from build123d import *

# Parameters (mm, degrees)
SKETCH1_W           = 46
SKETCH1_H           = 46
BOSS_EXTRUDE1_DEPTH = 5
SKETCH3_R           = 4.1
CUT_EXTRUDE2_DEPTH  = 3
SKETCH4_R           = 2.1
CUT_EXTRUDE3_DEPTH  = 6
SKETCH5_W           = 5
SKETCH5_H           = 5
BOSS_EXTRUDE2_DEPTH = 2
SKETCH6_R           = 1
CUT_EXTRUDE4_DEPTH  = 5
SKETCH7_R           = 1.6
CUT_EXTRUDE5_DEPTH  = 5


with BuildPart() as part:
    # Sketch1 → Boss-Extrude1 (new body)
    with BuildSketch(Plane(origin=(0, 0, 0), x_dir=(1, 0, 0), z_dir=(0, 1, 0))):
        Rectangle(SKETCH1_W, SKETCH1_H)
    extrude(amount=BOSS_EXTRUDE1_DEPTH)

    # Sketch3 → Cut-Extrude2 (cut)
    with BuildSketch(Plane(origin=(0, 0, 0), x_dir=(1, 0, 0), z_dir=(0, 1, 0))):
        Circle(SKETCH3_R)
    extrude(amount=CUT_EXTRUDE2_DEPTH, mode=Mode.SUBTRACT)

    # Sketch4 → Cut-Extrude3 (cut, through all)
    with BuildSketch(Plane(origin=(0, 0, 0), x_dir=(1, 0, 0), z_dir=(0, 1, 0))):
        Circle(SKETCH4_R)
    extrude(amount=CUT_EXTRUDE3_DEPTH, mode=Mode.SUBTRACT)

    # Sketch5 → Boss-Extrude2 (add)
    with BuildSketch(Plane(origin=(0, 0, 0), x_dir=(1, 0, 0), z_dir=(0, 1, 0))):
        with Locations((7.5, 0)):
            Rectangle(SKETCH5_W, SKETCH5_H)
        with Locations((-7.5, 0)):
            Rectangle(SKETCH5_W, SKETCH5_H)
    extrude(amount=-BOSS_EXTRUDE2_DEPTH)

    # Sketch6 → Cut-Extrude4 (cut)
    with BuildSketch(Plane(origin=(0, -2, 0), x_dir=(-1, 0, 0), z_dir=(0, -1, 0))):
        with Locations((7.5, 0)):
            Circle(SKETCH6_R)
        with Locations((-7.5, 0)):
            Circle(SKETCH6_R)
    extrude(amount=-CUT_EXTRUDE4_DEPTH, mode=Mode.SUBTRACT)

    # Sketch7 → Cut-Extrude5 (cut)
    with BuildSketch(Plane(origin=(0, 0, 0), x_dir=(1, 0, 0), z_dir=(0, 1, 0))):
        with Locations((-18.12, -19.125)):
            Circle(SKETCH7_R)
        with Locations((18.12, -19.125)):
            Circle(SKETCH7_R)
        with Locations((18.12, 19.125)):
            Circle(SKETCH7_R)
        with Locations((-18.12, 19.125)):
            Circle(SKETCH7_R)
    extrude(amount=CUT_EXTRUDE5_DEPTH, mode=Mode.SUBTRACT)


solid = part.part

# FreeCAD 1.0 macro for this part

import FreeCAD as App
import Part
import Sketcher
from FreeCAD import Vector
Q = App.Units.Quantity

doc = App.newDocument("Part")
params = doc.addObject("Spreadsheet::Sheet", "Params")
for row, (alias, value) in enumerate([
    ("sketch1_width", "46 mm"),
    ("pad1_length", "5 mm"),
    ("sketch2_diameter", "8.2 mm"),
    ("pocket1_length", "3 mm"),
    ("sketch3_diameter", "4.2 mm"),
    ("sketch4_width", "5 mm"),
    ("pad2_length", "2 mm"),
    ("sketch5_diameter", "2 mm"),
    ("pocket3_length", "5 mm"),
    ("sketch6_diameter", "3.2 mm"),
    ("pocket4_length", "5 mm"),
], start=1):
    params.set(f"A{row}", alias)
    params.set(f"B{row}", "=" + value)
    params.setAlias(f"B{row}", alias)

body = doc.addObject("PartDesign::Body", "Body")

# Sketch on XZ plane
sketch1 = body.newObject("Sketcher::SketchObject", "Sketch")
sketch1.AttachmentSupport = (doc.getObject("XZ_Plane"), [""])
sketch1.MapMode = "FlatFace"
sketch1.addGeometry(Part.LineSegment(Vector(-23, -23, 0), Vector(-23, 23, 0)), False)
sketch1.addGeometry(Part.LineSegment(Vector(-23, 23, 0), Vector(23, 23, 0)), False)
sketch1.addGeometry(Part.LineSegment(Vector(23, 23, 0), Vector(23, -23, 0)), False)
sketch1.addGeometry(Part.LineSegment(Vector(23, -23, 0), Vector(-23, -23, 0)), False)
sketch1.addConstraint(Sketcher.Constraint("Coincident", 0, 2, 1, 1))
sketch1.addConstraint(Sketcher.Constraint("Coincident", 1, 2, 2, 1))
sketch1.addConstraint(Sketcher.Constraint("Coincident", 2, 2, 3, 1))
sketch1.addConstraint(Sketcher.Constraint("Coincident", 3, 2, 0, 1))
sketch1.addConstraint(Sketcher.Constraint("Vertical", 0))
sketch1.addConstraint(Sketcher.Constraint("Horizontal", 1))
sketch1.addConstraint(Sketcher.Constraint("Vertical", 2))
sketch1.addConstraint(Sketcher.Constraint("Horizontal", 3))
sketch1.addConstraint(Sketcher.Constraint("Symmetric", 0, 2, 2, 2, -1, 1))
sketch1.addConstraint(Sketcher.Constraint("Equal", 3, 0))
sketch1.addConstraint(Sketcher.Constraint("DistanceX", 1, 1, 1, 2, Q("46 mm")))
sketch1.setExpression("Constraints[10]", "Params.sketch1_width")
pad1 = body.newObject("PartDesign::Pad", "Pad")
pad1.Profile = sketch1
pad1.setExpression("Length", "Params.pad1_length")
pad1.Reversed = True

# Sketch on XZ plane
sketch2 = body.newObject("Sketcher::SketchObject", "Sketch001")
sketch2.AttachmentSupport = (doc.getObject("XZ_Plane"), [""])
sketch2.MapMode = "FlatFace"
sketch2.addGeometry(Part.Circle(Vector(0, 0, 0), Vector(0, 0, 1), 4.1), False)
sketch2.addConstraint(Sketcher.Constraint("Coincident", 0, 3, -1, 1))
sketch2.addConstraint(Sketcher.Constraint("Diameter", 0, Q("8.2 mm")))
sketch2.setExpression("Constraints[1]", "Params.sketch2_diameter")
pocket1 = body.newObject("PartDesign::Pocket", "Pocket")
pocket1.Profile = sketch2
pocket1.setExpression("Length", "Params.pocket1_length")

# Sketch on XZ plane
sketch3 = body.newObject("Sketcher::SketchObject", "Sketch002")
sketch3.AttachmentSupport = (doc.getObject("XZ_Plane"), [""])
sketch3.MapMode = "FlatFace"
sketch3.addGeometry(Part.Circle(Vector(0, 0, 0), Vector(0, 0, 1), 2.1), False)
sketch3.addConstraint(Sketcher.Constraint("Coincident", 0, 3, -1, 1))
sketch3.addConstraint(Sketcher.Constraint("Diameter", 0, Q("4.2 mm")))
sketch3.setExpression("Constraints[1]", "Params.sketch3_diameter")
pocket2 = body.newObject("PartDesign::Pocket", "Pocket001")
pocket2.Profile = sketch3
pocket2.Type = "ThroughAll"

# Sketch on XZ plane
sketch4 = body.newObject("Sketcher::SketchObject", "Sketch003")
sketch4.AttachmentSupport = (doc.getObject("XZ_Plane"), [""])
sketch4.MapMode = "FlatFace"
sketch4.addGeometry(Part.LineSegment(Vector(5, -2.5, 0), Vector(5, 2.5, 0)), False)
sketch4.addGeometry(Part.LineSegment(Vector(5, 2.5, 0), Vector(10, 2.5, 0)), False)
sketch4.addGeometry(Part.LineSegment(Vector(10, 2.5, 0), Vector(10, -2.5, 0)), False)
sketch4.addGeometry(Part.LineSegment(Vector(10, -2.5, 0), Vector(5, -2.5, 0)), False)
sketch4.addGeometry(Part.LineSegment(Vector(-10, -2.5, 0), Vector(-10, 2.5, 0)), False)
sketch4.addGeometry(Part.LineSegment(Vector(-10, 2.5, 0), Vector(-5, 2.5, 0)), False)
sketch4.addGeometry(Part.LineSegment(Vector(-5, 2.5, 0), Vector(-5, -2.5, 0)), False)
sketch4.addGeometry(Part.LineSegment(Vector(-5, -2.5, 0), Vector(-10, -2.5, 0)), False)
sketch4.addConstraint(Sketcher.Constraint("Coincident", 0, 2, 1, 1))
sketch4.addConstraint(Sketcher.Constraint("Coincident", 1, 2, 2, 1))
sketch4.addConstraint(Sketcher.Constraint("Coincident", 2, 2, 3, 1))
sketch4.addConstraint(Sketcher.Constraint("Coincident", 3, 2, 0, 1))
sketch4.addConstraint(Sketcher.Constraint("Coincident", 4, 2, 5, 1))
sketch4.addConstraint(Sketcher.Constraint("Coincident", 5, 2, 6, 1))
sketch4.addConstraint(Sketcher.Constraint("Coincident", 6, 2, 7, 1))
sketch4.addConstraint(Sketcher.Constraint("Coincident", 7, 2, 4, 1))
sketch4.addConstraint(Sketcher.Constraint("Vertical", 0))
sketch4.addConstraint(Sketcher.Constraint("Horizontal", 1))
sketch4.addConstraint(Sketcher.Constraint("Vertical", 2))
sketch4.addConstraint(Sketcher.Constraint("Horizontal", 3))
sketch4.addConstraint(Sketcher.Constraint("Vertical", 4))
sketch4.addConstraint(Sketcher.Constraint("Horizontal", 5))
sketch4.addConstraint(Sketcher.Constraint("Vertical", 6))
sketch4.addConstraint(Sketcher.Constraint("Horizontal", 7))
sketch4.addConstraint(Sketcher.Constraint("Symmetric", 2, 2, 4, 2, -1, 1))
sketch4.addConstraint(Sketcher.Constraint("Symmetric", 0, 2, 6, 2, -1, 1))
sketch4.addConstraint(Sketcher.Constraint("Horizontal", 1, 2, 4, 2))
sketch4.addConstraint(Sketcher.Constraint("Equal", 7, 0))
sketch4.addConstraint(Sketcher.Constraint("DistanceX", 1, 1, 1, 2, Q("5 mm")))
sketch4.addConstraint(Sketcher.Constraint("DistanceX", -1, 1, 0, 2, Q("5 mm")))
sketch4.setExpression("Constraints[20]", "Params.sketch4_width")
pad2 = body.newObject("PartDesign::Pad", "Pad001")
pad2.Profile = sketch4
pad2.setExpression("Length", "Params.pad2_length")

# Sketch on XZ plane
sketch5 = body.newObject("Sketcher::SketchObject", "Sketch004")
sketch5.AttachmentSupport = (doc.getObject("XZ_Plane"), [""])
sketch5.MapMode = "FlatFace"
sketch5.AttachmentOffset = App.Placement(Vector(0, 0, 2), App.Rotation())
sketch5.addGeometry(Part.Circle(Vector(-7.5, 0, 0), Vector(0, 0, 1), 1), False)
sketch5.addGeometry(Part.Circle(Vector(7.5, 0, 0), Vector(0, 0, 1), 1), False)
sketch5.addConstraint(Sketcher.Constraint("Equal", 0, 1))
sketch5.addConstraint(Sketcher.Constraint("Symmetric", 0, 3, 1, 3, -1, 1))
sketch5.addConstraint(Sketcher.Constraint("PointOnObject", 0, 3, -1))
sketch5.addConstraint(Sketcher.Constraint("Diameter", 0, Q("2 mm")))
sketch5.addConstraint(Sketcher.Constraint("DistanceX", 0, 3, 1, 3, Q("15 mm")))
sketch5.setExpression("Constraints[3]", "Params.sketch5_diameter")
pocket3 = body.newObject("PartDesign::Pocket", "Pocket002")
pocket3.Profile = sketch5
pocket3.setExpression("Length", "Params.pocket3_length")

# Sketch on XZ plane
sketch6 = body.newObject("Sketcher::SketchObject", "Sketch005")
sketch6.AttachmentSupport = (doc.getObject("XZ_Plane"), [""])
sketch6.MapMode = "FlatFace"
sketch6.addGeometry(Part.Circle(Vector(-18.12, 19.125, 0), Vector(0, 0, 1), 1.6), False)
sketch6.addGeometry(Part.Circle(Vector(18.12, 19.125, 0), Vector(0, 0, 1), 1.6), False)
sketch6.addGeometry(Part.Circle(Vector(18.12, -19.125, 0), Vector(0, 0, 1), 1.6), False)
sketch6.addGeometry(Part.Circle(Vector(-18.12, -19.125, 0), Vector(0, 0, 1), 1.6), False)
sketch6.addConstraint(Sketcher.Constraint("Equal", 0, 1))
sketch6.addConstraint(Sketcher.Constraint("Equal", 1, 2))
sketch6.addConstraint(Sketcher.Constraint("Equal", 2, 3))
sketch6.addConstraint(Sketcher.Constraint("Symmetric", 0, 3, 2, 3, -1, 1))
sketch6.addConstraint(Sketcher.Constraint("Symmetric", 1, 3, 3, 3, -1, 1))
sketch6.addConstraint(Sketcher.Constraint("Symmetric", 0, 3, 1, 3, -2))
sketch6.addConstraint(Sketcher.Constraint("Diameter", 0, Q("3.2 mm")))
sketch6.addConstraint(Sketcher.Constraint("DistanceX", 0, 3, -1, 1, Q("18.12 mm")))
sketch6.addConstraint(Sketcher.Constraint("DistanceY", 2, 3, 1, 3, Q("38.25 mm")))
sketch6.setExpression("Constraints[6]", "Params.sketch6_diameter")
pocket4 = body.newObject("PartDesign::Pocket", "Pocket003")
pocket4.Profile = sketch6
pocket4.setExpression("Length", "Params.pocket4_length")

doc.recompute()
